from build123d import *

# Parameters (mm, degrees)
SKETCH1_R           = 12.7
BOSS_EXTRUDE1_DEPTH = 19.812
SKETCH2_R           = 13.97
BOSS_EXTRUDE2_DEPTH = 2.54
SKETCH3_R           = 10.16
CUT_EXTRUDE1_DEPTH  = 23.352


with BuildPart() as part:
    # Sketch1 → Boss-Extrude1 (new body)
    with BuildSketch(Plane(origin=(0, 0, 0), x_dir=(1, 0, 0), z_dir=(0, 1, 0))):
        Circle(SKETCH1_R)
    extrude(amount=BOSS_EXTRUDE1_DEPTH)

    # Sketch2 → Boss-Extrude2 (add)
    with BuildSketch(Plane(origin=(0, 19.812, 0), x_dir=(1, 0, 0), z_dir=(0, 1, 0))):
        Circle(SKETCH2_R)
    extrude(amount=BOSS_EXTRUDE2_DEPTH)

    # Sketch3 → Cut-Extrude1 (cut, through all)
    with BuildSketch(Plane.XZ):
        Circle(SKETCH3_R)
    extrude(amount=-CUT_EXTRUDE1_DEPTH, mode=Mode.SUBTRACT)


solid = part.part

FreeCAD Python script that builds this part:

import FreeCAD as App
import Part
import Sketcher

V = App.Vector
Q = App.Units.Quantity

doc = App.newDocument("Part")
body = doc.addObject("PartDesign::Body", "Body")

sketch1 = doc.addObject("Sketcher::SketchObject", "Sketch")
body.addObject(sketch1)
sketch1.AttachmentSupport = (doc.XZ_Plane, [""])
sketch1.MapMode = "FlatFace"
sketch1.addGeometry(Part.Circle(V(0, 0, 0), V(0, 0, 1), 13), False)
sketch1.addConstraint([
    Sketcher.Constraint("Coincident", 0, 3, -1, 1),
    Sketcher.Constraint("Diameter", 0, Q("1 in")),
])
pad1 = doc.addObject("PartDesign::Pad", "Pad")
body.addObject(pad1)
pad1.Profile = sketch1
pad1.Length = Q("0.78 in")
pad1.Reversed = True

sketch2 = doc.addObject("Sketcher::SketchObject", "Sketch001")
body.addObject(sketch2)
sketch2.AttachmentSupport = (doc.XZ_Plane, [""])
sketch2.MapMode = "FlatFace"
sketch2.AttachmentOffset = App.Placement(V(0, 0, -0.78 * 25.4), App.Rotation())
sketch2.addGeometry(Part.Circle(V(0, 0, 0), V(0, 0, 1), 14), False)
sketch2.addConstraint([
    Sketcher.Constraint("Coincident", 0, 3, -1, 1),
    Sketcher.Constraint("Diameter", 0, Q("1.1 in")),
])
pad2 = doc.addObject("PartDesign::Pad", "Pad001")
body.addObject(pad2)
pad2.Profile = sketch2
pad2.Length = Q("0.1 in")
pad2.Reversed = True

sketch3 = doc.addObject("Sketcher::SketchObject", "Sketch002")
body.addObject(sketch3)
sketch3.AttachmentSupport = (doc.XZ_Plane, [""])
sketch3.MapMode = "FlatFace"
sketch3.addGeometry(Part.Circle(V(0, 0, 0), V(0, 0, 1), 10), False)
sketch3.addConstraint([
    Sketcher.Constraint("Coincident", 0, 3, -1, 1),
    Sketcher.Constraint("Diameter", 0, Q("0.8 in")),
])
pocket1 = doc.addObject("PartDesign::Pocket", "Pocket")
body.addObject(pocket1)
pocket1.Profile = sketch3
pocket1.Type = "ThroughAll"

doc.recompute()
